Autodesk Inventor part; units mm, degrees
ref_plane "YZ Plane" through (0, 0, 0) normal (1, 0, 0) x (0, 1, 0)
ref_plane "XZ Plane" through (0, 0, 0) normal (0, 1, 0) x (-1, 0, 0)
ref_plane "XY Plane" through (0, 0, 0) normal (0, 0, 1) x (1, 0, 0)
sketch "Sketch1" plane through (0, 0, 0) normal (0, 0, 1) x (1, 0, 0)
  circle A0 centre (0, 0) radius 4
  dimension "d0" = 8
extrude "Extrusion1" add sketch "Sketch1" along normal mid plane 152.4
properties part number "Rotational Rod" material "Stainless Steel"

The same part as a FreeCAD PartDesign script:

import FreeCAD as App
import Part
import Sketcher
from FreeCAD import Vector
Q = App.Units.Quantity

doc = App.newDocument("Part")
body = doc.addObject("PartDesign::Body", "Body")

# Sketch on XY plane
sketch1 = body.newObject("Sketcher::SketchObject", "Sketch")
sketch1.AttachmentSupport = (doc.getObject("XY_Plane"), [""])
sketch1.MapMode = "FlatFace"
sketch1.addGeometry(Part.Circle(Vector(0, 0, 0), Vector(0, 0, 1), 4), False)
sketch1.addConstraint([
    Sketcher.Constraint("Coincident", 0, 3, -1, 1),
    Sketcher.Constraint("Diameter", 0, Q("8 mm")),
])
pad1 = body.newObject("PartDesign::Pad", "Pad")
pad1.Profile = sketch1
pad1.Length = 152.4
pad1.Midplane = True

doc.recompute()
